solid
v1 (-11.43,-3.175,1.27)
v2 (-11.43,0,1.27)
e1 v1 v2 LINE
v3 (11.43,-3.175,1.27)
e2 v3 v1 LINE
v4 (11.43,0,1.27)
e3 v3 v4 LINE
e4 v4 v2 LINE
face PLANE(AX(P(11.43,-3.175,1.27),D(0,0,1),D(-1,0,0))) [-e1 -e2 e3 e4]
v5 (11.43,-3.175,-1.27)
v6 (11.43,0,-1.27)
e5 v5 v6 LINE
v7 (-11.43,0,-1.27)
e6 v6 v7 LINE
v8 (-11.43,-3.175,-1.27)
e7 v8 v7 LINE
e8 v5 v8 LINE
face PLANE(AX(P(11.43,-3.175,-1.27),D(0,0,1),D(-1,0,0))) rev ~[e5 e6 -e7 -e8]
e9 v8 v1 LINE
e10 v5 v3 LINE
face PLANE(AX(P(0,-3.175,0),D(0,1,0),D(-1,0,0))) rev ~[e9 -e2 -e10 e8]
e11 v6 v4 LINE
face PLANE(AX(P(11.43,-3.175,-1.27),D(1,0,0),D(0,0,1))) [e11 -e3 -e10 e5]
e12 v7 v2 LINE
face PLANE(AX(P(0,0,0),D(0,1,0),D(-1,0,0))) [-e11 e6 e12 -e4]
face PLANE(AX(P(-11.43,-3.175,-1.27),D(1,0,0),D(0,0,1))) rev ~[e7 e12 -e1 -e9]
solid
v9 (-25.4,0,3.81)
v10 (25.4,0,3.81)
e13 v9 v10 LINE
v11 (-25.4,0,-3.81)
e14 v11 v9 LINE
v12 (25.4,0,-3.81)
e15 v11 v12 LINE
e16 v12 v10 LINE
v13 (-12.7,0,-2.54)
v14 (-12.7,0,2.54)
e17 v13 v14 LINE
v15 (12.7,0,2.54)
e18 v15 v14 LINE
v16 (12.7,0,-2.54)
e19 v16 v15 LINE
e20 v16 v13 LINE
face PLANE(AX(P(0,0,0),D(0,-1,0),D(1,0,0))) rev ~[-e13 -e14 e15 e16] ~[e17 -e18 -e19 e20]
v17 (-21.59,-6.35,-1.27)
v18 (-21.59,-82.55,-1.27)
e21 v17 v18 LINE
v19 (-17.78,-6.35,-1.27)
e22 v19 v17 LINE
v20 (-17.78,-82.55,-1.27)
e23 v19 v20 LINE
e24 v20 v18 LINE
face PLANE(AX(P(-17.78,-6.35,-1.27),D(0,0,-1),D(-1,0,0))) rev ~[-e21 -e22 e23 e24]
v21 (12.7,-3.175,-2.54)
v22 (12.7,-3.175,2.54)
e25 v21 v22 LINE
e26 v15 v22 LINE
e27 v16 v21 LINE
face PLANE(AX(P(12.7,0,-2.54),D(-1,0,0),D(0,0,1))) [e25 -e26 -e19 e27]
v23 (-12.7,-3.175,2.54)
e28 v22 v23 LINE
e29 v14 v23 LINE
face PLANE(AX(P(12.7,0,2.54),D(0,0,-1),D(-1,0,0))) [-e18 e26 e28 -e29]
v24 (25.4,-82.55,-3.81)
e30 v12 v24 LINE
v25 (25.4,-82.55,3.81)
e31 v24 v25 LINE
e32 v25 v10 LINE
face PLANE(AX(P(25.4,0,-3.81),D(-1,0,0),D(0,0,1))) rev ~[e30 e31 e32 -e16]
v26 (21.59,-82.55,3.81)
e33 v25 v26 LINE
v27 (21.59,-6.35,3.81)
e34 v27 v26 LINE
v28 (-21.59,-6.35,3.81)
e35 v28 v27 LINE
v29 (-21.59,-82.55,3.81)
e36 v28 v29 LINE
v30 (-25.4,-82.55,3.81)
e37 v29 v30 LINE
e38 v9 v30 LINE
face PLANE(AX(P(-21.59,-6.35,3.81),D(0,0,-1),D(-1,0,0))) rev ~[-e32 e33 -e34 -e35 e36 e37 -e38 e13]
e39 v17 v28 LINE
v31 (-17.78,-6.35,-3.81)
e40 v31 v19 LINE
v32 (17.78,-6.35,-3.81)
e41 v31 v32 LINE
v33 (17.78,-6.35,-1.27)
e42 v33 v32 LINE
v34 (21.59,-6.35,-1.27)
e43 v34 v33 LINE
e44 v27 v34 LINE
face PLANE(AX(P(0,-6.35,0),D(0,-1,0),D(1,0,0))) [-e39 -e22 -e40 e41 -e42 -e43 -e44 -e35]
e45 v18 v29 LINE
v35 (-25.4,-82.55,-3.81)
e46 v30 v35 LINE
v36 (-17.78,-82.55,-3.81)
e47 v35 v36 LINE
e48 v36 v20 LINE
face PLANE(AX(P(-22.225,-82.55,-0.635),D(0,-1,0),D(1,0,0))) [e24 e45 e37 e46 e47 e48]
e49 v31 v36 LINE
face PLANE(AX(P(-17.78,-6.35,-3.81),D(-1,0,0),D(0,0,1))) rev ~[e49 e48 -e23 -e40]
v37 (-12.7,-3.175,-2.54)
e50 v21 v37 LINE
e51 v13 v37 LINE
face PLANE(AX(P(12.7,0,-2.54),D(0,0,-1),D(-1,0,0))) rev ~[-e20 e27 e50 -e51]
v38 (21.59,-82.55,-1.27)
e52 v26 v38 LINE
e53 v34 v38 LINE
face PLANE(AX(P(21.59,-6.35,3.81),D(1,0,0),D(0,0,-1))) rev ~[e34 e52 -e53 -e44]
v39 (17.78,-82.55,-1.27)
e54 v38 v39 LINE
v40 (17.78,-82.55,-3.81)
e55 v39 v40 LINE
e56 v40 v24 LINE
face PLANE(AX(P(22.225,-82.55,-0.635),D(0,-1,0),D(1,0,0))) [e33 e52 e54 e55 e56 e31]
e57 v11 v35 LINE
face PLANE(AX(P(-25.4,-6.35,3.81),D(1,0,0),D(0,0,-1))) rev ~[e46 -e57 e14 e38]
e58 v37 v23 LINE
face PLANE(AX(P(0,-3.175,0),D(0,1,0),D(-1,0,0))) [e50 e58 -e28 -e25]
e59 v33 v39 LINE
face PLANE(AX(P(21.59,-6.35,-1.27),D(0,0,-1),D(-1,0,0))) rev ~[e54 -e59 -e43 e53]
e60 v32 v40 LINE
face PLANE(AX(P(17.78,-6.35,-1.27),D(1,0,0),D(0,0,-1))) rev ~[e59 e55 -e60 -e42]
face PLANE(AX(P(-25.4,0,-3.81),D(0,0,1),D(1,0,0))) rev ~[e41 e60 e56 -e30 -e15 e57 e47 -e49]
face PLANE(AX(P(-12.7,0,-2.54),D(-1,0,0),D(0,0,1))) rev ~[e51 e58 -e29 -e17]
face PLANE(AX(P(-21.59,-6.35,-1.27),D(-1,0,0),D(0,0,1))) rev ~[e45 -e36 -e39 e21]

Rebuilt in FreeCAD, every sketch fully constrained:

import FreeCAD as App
import Part
import Sketcher

V = App.Vector
Q = App.Units.Quantity


def add_polygon(sketch, points):
    """Adds a closed chain of lines whose ends are joined by coincident constraints."""
    first, n = sketch.GeometryCount, len(points)
    for a, b in zip(points, points[1:] + points[:1]):
        sketch.addGeometry(Part.LineSegment(App.Vector(*a, 0), App.Vector(*b, 0)), False)
    for i in range(n):
        sketch.addConstraint(Sketcher.Constraint("Coincident", first + i, 2, first + (i + 1) % n, 1))

doc = App.newDocument("Part")
body = doc.addObject("PartDesign::Body", "Body")

sketch1 = doc.addObject("Sketcher::SketchObject", "Sketch")
body.addObject(sketch1)
sketch1.AttachmentSupport = (doc.XZ_Plane, [""])
sketch1.MapMode = "FlatFace"
add_polygon(sketch1, [(-25, 4), (-25, -4), (25, -4), (25, 4)])
sketch1.addConstraint([
    Sketcher.Constraint("Vertical", 0),
    Sketcher.Constraint("Horizontal", 1),
    Sketcher.Constraint("Vertical", 2),
    Sketcher.Constraint("Horizontal", 3),
    Sketcher.Constraint("Symmetric", 0, 2, 2, 2, -1, 1),
    Sketcher.Constraint("DistanceX", 1, 1, 1, 2, Q("2 in")),
    Sketcher.Constraint("DistanceY", 0, 2, 0, 1, Q("0.3 in")),
])
pad1 = doc.addObject("PartDesign::Pad", "Pad")
body.addObject(pad1)
pad1.Profile = sketch1
pad1.Length = Q("0.25 in")

sketch2 = doc.addObject("Sketcher::SketchObject", "Sketch001")
body.addObject(sketch2)
sketch2.AttachmentSupport = (doc.XZ_Plane, [""])
sketch2.MapMode = "FlatFace"
sketch2.AttachmentOffset = App.Placement(V(0, 0, 0.25 * 25.4), App.Rotation())
add_polygon(sketch2, [(-21.6, -1.3), (-21.6, 3.8), (-25.4, 3.8), (-25.4, -3.8), (-17.8, -3.8), (-17.8, -1.3)])
add_polygon(sketch2, [(25.4, 3.8), (21.6, 3.8), (21.6, -1.3), (17.8, -1.3), (17.8, -3.8), (25.4, -3.8)])
sketch2.addConstraint([
    Sketcher.Constraint("Vertical", 0),
    Sketcher.Constraint("Horizontal", 1),
    Sketcher.Constraint("Vertical", 2),
    Sketcher.Constraint("Horizontal", 3),
    Sketcher.Constraint("Vertical", 4),
    Sketcher.Constraint("Horizontal", 5),
    Sketcher.Constraint("Horizontal", 6),
    Sketcher.Constraint("Vertical", 7),
    Sketcher.Constraint("Horizontal", 8),
    Sketcher.Constraint("Vertical", 9),
    Sketcher.Constraint("Horizontal", 10),
    Sketcher.Constraint("Vertical", 11),
    Sketcher.Constraint("Symmetric", 1, 2, 10, 2, -1, 1),
    Sketcher.Constraint("Symmetric", 0, 2, 6, 2, -2),
    Sketcher.Constraint("Symmetric", 4, 2, 8, 2, -2),
    Sketcher.Constraint("Horizontal", 3, 2, 9, 2),
    Sketcher.Constraint("Equal", 1, 5),
    Sketcher.Constraint("Equal", 10, 2),
    Sketcher.Constraint("DistanceX", 3, 1, 3, 2, Q("0.3 in")),
    Sketcher.Constraint("DistanceY", 0, 1, 0, 2, Q("0.2 in")),
    Sketcher.Constraint("DistanceX", 1, 2, -1, 1, Q("1 in")),
])
pad2 = doc.addObject("PartDesign::Pad", "Pad001")
body.addObject(pad2)
pad2.Profile = sketch2
pad2.Length = Q("3 in")

sketch3 = doc.addObject("Sketcher::SketchObject", "Sketch002")
body.addObject(sketch3)
sketch3.AttachmentSupport = (doc.XZ_Plane, [""])
sketch3.MapMode = "FlatFace"
add_polygon(sketch3, [(13, 3), (13, -3), (-13, -3), (-13, 3)])
sketch3.addConstraint([
    Sketcher.Constraint("Vertical", 0),
    Sketcher.Constraint("Horizontal", 1),
    Sketcher.Constraint("Vertical", 2),
    Sketcher.Constraint("Horizontal", 3),
    Sketcher.Constraint("Symmetric", 0, 2, 2, 2, -1, 1),
    Sketcher.Constraint("DistanceX", 1, 2, 1, 1, Q("1 in")),
    Sketcher.Constraint("DistanceY", 0, 2, 0, 1, Q("0.2 in")),
])
pocket1 = doc.addObject("PartDesign::Pocket", "Pocket")
body.addObject(pocket1)
pocket1.Profile = sketch3
pocket1.Length = Q("0.125 in")
pocket1.Reversed = True
body2 = doc.addObject("PartDesign::Body", "Body001")

sketch4 = doc.addObject("Sketcher::SketchObject", "Sketch003")
body2.addObject(sketch4)
sketch4.AttachmentSupport = (doc.getObject("XZ_Plane001"), [""])
sketch4.MapMode = "FlatFace"
sketch4.AttachmentOffset = App.Placement(V(0, 0, 0.125 * 25.4), App.Rotation())
add_polygon(sketch4, [(11.4, 1.3), (11.4, -1.3), (-11.4, -1.3), (-11.4, 1.3)])
sketch4.addConstraint([
    Sketcher.Constraint("Vertical", 0),
    Sketcher.Constraint("Horizontal", 1),
    Sketcher.Constraint("Vertical", 2),
    Sketcher.Constraint("Horizontal", 3),
    Sketcher.Constraint("Symmetric", 0, 2, 2, 2, -1, 1),
    Sketcher.Constraint("DistanceX", 1, 2, 1, 1, Q("0.9 in")),
    Sketcher.Constraint("DistanceY", 0, 2, 0, 1, Q("0.1 in")),
])
pad3 = doc.addObject("PartDesign::Pad", "Pad002")
body2.addObject(pad3)
pad3.Profile = sketch4
pad3.Length = Q("0.125 in")
pad3.Reversed = True

doc.recompute()
